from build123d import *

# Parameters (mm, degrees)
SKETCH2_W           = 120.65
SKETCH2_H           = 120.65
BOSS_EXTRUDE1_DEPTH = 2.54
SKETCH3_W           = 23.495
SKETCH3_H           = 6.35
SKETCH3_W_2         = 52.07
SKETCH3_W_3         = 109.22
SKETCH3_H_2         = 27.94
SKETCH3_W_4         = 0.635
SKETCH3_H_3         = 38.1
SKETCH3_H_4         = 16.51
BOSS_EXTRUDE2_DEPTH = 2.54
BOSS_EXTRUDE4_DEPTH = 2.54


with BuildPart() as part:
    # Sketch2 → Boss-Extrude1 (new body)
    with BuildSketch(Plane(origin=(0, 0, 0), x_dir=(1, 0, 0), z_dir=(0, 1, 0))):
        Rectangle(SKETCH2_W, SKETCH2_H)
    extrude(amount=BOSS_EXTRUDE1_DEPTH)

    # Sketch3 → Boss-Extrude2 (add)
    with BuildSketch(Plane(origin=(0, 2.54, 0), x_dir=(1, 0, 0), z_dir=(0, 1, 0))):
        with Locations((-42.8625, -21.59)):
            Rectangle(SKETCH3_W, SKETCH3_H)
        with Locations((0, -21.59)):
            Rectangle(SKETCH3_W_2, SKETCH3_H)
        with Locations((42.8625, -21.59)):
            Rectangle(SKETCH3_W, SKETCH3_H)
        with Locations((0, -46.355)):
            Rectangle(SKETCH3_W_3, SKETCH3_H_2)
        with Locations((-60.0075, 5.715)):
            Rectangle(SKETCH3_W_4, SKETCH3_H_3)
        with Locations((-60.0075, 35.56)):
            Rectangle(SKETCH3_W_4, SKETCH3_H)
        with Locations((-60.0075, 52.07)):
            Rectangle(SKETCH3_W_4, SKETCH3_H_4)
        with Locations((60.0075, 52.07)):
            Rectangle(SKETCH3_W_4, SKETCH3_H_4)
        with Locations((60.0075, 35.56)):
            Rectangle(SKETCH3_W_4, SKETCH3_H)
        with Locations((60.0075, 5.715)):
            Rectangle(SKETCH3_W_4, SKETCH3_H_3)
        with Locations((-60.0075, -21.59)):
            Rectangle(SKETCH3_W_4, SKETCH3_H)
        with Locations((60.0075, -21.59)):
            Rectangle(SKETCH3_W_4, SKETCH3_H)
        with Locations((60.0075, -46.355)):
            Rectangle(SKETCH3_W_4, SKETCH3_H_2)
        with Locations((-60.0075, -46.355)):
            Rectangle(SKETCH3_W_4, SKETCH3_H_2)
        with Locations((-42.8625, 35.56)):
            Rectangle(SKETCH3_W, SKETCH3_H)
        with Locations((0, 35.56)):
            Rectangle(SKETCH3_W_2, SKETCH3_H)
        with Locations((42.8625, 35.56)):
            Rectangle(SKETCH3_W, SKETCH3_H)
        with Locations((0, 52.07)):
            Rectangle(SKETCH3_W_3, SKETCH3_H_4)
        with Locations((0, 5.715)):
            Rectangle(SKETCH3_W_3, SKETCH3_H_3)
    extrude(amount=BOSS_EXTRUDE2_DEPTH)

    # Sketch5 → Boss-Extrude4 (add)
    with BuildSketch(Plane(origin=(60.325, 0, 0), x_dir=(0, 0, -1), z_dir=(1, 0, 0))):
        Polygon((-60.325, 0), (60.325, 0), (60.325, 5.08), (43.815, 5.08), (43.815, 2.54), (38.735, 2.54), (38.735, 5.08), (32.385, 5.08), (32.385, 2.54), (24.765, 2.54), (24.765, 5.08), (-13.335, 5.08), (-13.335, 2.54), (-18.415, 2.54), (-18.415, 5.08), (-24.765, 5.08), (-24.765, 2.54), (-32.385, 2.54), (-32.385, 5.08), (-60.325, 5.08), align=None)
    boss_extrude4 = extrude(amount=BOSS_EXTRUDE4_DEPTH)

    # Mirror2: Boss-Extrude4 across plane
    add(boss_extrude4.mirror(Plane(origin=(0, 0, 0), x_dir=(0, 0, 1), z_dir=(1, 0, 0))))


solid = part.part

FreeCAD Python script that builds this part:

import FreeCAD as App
import Part
import Sketcher
from FreeCAD import Vector
Q = App.Units.Quantity


def add_polygon(sketch, points):
    """Adds a closed chain of lines whose ends are joined by coincident constraints."""
    first, n = sketch.GeometryCount, len(points)
    for a, b in zip(points, points[1:] + points[:1]):
        sketch.addGeometry(Part.LineSegment(App.Vector(*a, 0), App.Vector(*b, 0)), False)
    for i in range(n):
        sketch.addConstraint(Sketcher.Constraint("Coincident", first + i, 2, first + (i + 1) % n, 1))

doc = App.newDocument("Part")
body = doc.addObject("PartDesign::Body", "Body")

sketch1 = doc.addObject("Sketcher::SketchObject", "Sketch")
body.addObject(sketch1)
sketch1.AttachmentSupport = (doc.XZ_Plane, [""])
sketch1.MapMode = "FlatFace"
add_polygon(sketch1, [(-60, -60), (-60, 60), (60, 60), (60, -60)])
sketch1.addConstraint(Sketcher.Constraint("Vertical", 0))
sketch1.addConstraint(Sketcher.Constraint("Horizontal", 1))
sketch1.addConstraint(Sketcher.Constraint("Vertical", 2))
sketch1.addConstraint(Sketcher.Constraint("Horizontal", 3))
sketch1.addConstraint(Sketcher.Constraint("Symmetric", 0, 2, 2, 2, -1, 1))
sketch1.addConstraint(Sketcher.Constraint("Equal", 3, 0))
sketch1.addConstraint(Sketcher.Constraint("DistanceX", 1, 1, 1, 2, Q("4.75 in")))
pad1 = doc.addObject("PartDesign::Pad", "Pad")
body.addObject(pad1)
pad1.Profile = sketch1
pad1.Length = Q("0.1 in")
pad1.Reversed = True

sketch2 = doc.addObject("Sketcher::SketchObject", "Sketch001")
body.addObject(sketch2)
sketch2.AttachmentSupport = (doc.XZ_Plane, [""])
sketch2.MapMode = "FlatFace"
sketch2.AttachmentOffset = App.Placement(Vector(0, 0, -0.1 * 25.4), App.Rotation())
add_polygon(sketch2, [(-54.6, 18.4), (-54.6, 24.8), (-31.1, 24.8), (-31.1, 18.4)])
add_polygon(sketch2, [(-26, 18.4), (-26, 24.8), (26, 24.8), (26, 18.4)])
add_polygon(sketch2, [(31.1, 18.4), (31.1, 24.8), (54.6, 24.8), (54.6, 18.4)])
add_polygon(sketch2, [(-54.6, 32.4), (-54.6, 60.3), (54.6, 60.3), (54.6, 32.4)])
add_polygon(sketch2, [(-60.3, -24.8), (-60.3, 13.3), (-59.7, 13.3), (-59.7, -24.8)])
add_polygon(sketch2, [(-60.3, -38.7), (-60.3, -32.4), (-59.7, -32.4), (-59.7, -38.7)])
add_polygon(sketch2, [(-60.3, -60.3), (-60.3, -43.8), (-59.7, -43.8), (-59.7, -60.3)])
add_polygon(sketch2, [(59.7, -60.3), (59.7, -43.8), (60.3, -43.8), (60.3, -60.3)])
add_polygon(sketch2, [(59.7, -38.7), (59.7, -32.4), (60.3, -32.4), (60.3, -38.7)])
add_polygon(sketch2, [(59.7, -24.8), (59.7, 13.3), (60.3, 13.3), (60.3, -24.8)])
add_polygon(sketch2, [(-60.3, 18.4), (-60.3, 24.8), (-59.7, 24.8), (-59.7, 18.4)])
add_polygon(sketch2, [(59.7, 18.4), (59.7, 24.8), (60.3, 24.8), (60.3, 18.4)])
add_polygon(sketch2, [(59.7, 32.4), (59.7, 60.3), (60.3, 60.3), (60.3, 32.4)])
add_polygon(sketch2, [(-60.3, 32.4), (-60.3, 60.3), (-59.7, 60.3), (-59.7, 32.4)])
add_polygon(sketch2, [(-54.6, -38.7), (-54.6, -32.4), (-31.1, -32.4), (-31.1, -38.7)])
add_polygon(sketch2, [(-26, -38.7), (-26, -32.4), (26, -32.4), (26, -38.7)])
add_polygon(sketch2, [(31.1, -38.7), (31.1, -32.4), (54.6, -32.4), (54.6, -38.7)])
add_polygon(sketch2, [(-54.6, -60.3), (-54.6, -43.8), (54.6, -43.8), (54.6, -60.3)])
add_polygon(sketch2, [(-54.6, -24.8), (-54.6, 13.3), (54.6, 13.3), (54.6, -24.8)])
sketch2.addConstraint(Sketcher.Constraint("Vertical", 0))
sketch2.addConstraint(Sketcher.Constraint("Horizontal", 1))
sketch2.addConstraint(Sketcher.Constraint("Vertical", 2))
sketch2.addConstraint(Sketcher.Constraint("Horizontal", 3))
sketch2.addConstraint(Sketcher.Constraint("Vertical", 4))
sketch2.addConstraint(Sketcher.Constraint("Horizontal", 5))
sketch2.addConstraint(Sketcher.Constraint("Vertical", 6))
sketch2.addConstraint(Sketcher.Constraint("Horizontal", 7))
sketch2.addConstraint(Sketcher.Constraint("Vertical", 8))
sketch2.addConstraint(Sketcher.Constraint("Horizontal", 9))
sketch2.addConstraint(Sketcher.Constraint("Vertical", 10))
sketch2.addConstraint(Sketcher.Constraint("Horizontal", 11))
sketch2.addConstraint(Sketcher.Constraint("Vertical", 12))
sketch2.addConstraint(Sketcher.Constraint("Horizontal", 13))
sketch2.addConstraint(Sketcher.Constraint("Vertical", 14))
sketch2.addConstraint(Sketcher.Constraint("Horizontal", 15))
sketch2.addConstraint(Sketcher.Constraint("Vertical", 16))
sketch2.addConstraint(Sketcher.Constraint("Horizontal", 17))
sketch2.addConstraint(Sketcher.Constraint("Vertical", 18))
sketch2.addConstraint(Sketcher.Constraint("Horizontal", 19))
sketch2.addConstraint(Sketcher.Constraint("Vertical", 20))
sketch2.addConstraint(Sketcher.Constraint("Horizontal", 21))
sketch2.addConstraint(Sketcher.Constraint("Vertical", 22))
sketch2.addConstraint(Sketcher.Constraint("Horizontal", 23))
sketch2.addConstraint(Sketcher.Constraint("Vertical", 24))
sketch2.addConstraint(Sketcher.Constraint("Horizontal", 25))
sketch2.addConstraint(Sketcher.Constraint("Vertical", 26))
sketch2.addConstraint(Sketcher.Constraint("Horizontal", 27))
sketch2.addConstraint(Sketcher.Constraint("Vertical", 28))
sketch2.addConstraint(Sketcher.Constraint("Horizontal", 29))
sketch2.addConstraint(Sketcher.Constraint("Vertical", 30))
sketch2.addConstraint(Sketcher.Constraint("Horizontal", 31))
sketch2.addConstraint(Sketcher.Constraint("Vertical", 32))
sketch2.addConstraint(Sketcher.Constraint("Horizontal", 33))
sketch2.addConstraint(Sketcher.Constraint("Vertical", 34))
sketch2.addConstraint(Sketcher.Constraint("Horizontal", 35))
sketch2.addConstraint(Sketcher.Constraint("Vertical", 36))
sketch2.addConstraint(Sketcher.Constraint("Horizontal", 37))
sketch2.addConstraint(Sketcher.Constraint("Vertical", 38))
sketch2.addConstraint(Sketcher.Constraint("Horizontal", 39))
sketch2.addConstraint(Sketcher.Constraint("Vertical", 40))
sketch2.addConstraint(Sketcher.Constraint("Horizontal", 41))
sketch2.addConstraint(Sketcher.Constraint("Vertical", 42))
sketch2.addConstraint(Sketcher.Constraint("Horizontal", 43))
sketch2.addConstraint(Sketcher.Constraint("Vertical", 44))
sketch2.addConstraint(Sketcher.Constraint("Horizontal", 45))
sketch2.addConstraint(Sketcher.Constraint("Vertical", 46))
sketch2.addConstraint(Sketcher.Constraint("Horizontal", 47))
sketch2.addConstraint(Sketcher.Constraint("Vertical", 48))
sketch2.addConstraint(Sketcher.Constraint("Horizontal", 49))
sketch2.addConstraint(Sketcher.Constraint("Vertical", 50))
sketch2.addConstraint(Sketcher.Constraint("Horizontal", 51))
sketch2.addConstraint(Sketcher.Constraint("Vertical", 52))
sketch2.addConstraint(Sketcher.Constraint("Horizontal", 53))
sketch2.addConstraint(Sketcher.Constraint("Vertical", 54))
sketch2.addConstraint(Sketcher.Constraint("Horizontal", 55))
sketch2.addConstraint(Sketcher.Constraint("Vertical", 56))
sketch2.addConstraint(Sketcher.Constraint("Horizontal", 57))
sketch2.addConstraint(Sketcher.Constraint("Vertical", 58))
sketch2.addConstraint(Sketcher.Constraint("Horizontal", 59))
sketch2.addConstraint(Sketcher.Constraint("Vertical", 60))
sketch2.addConstraint(Sketcher.Constraint("Horizontal", 61))
sketch2.addConstraint(Sketcher.Constraint("Vertical", 62))
sketch2.addConstraint(Sketcher.Constraint("Horizontal", 63))
sketch2.addConstraint(Sketcher.Constraint("Vertical", 64))
sketch2.addConstraint(Sketcher.Constraint("Horizontal", 65))
sketch2.addConstraint(Sketcher.Constraint("Vertical", 66))
sketch2.addConstraint(Sketcher.Constraint("Horizontal", 67))
sketch2.addConstraint(Sketcher.Constraint("Vertical", 68))
sketch2.addConstraint(Sketcher.Constraint("Horizontal", 69))
sketch2.addConstraint(Sketcher.Constraint("Vertical", 70))
sketch2.addConstraint(Sketcher.Constraint("Horizontal", 71))
sketch2.addConstraint(Sketcher.Constraint("Vertical", 72))
sketch2.addConstraint(Sketcher.Constraint("Horizontal", 73))
sketch2.addConstraint(Sketcher.Constraint("Vertical", 74))
sketch2.addConstraint(Sketcher.Constraint("Horizontal", 75))
sketch2.addConstraint(Sketcher.Constraint("Symmetric", 38, 2, 40, 2, -1, 1))
sketch2.addConstraint(Sketcher.Constraint("Symmetric", 18, 2, 44, 2, -1, 1))
sketch2.addConstraint(Sketcher.Constraint("Symmetric", 26, 2, 48, 2, -1, 1))
sketch2.addConstraint(Sketcher.Constraint("Symmetric", 20, 2, 50, 2, -1, 1))
sketch2.addConstraint(Sketcher.Constraint("Symmetric", 30, 2, 52, 2, -1, 1))
sketch2.addConstraint(Sketcher.Constraint("Symmetric", 32, 2, 54, 2, -1, 1))
sketch2.addConstraint(Sketcher.Constraint("Symmetric", 14, 2, 56, 2, -1, 1))
sketch2.addConstraint(Sketcher.Constraint("Symmetric", 15, 2, 65, 2, -1, 1))
sketch2.addConstraint(Sketcher.Constraint("Symmetric", 12, 2, 70, 2, -1, 1))
sketch2.addConstraint(Sketcher.Constraint("Symmetric", 0, 2, 74, 2, -1, 1))
sketch2.addConstraint(Sketcher.Constraint("Symmetric", 9, 2, 75, 2, -1, 1))
sketch2.addConstraint(Sketcher.Constraint("Symmetric", 3, 2, 10, 2, -2))
sketch2.addConstraint(Sketcher.Constraint("Symmetric", 25, 2, 28, 2, -2))
sketch2.addConstraint(Sketcher.Constraint("Symmetric", 27, 2, 30, 2, -2))
sketch2.addConstraint(Sketcher.Constraint("Symmetric", 21, 2, 32, 2, -2))
sketch2.addConstraint(Sketcher.Constraint("Symmetric", 23, 2, 34, 2, -2))
sketch2.addConstraint(Sketcher.Constraint("Symmetric", 17, 2, 36, 2, -2))
sketch2.addConstraint(Sketcher.Constraint("Symmetric", 19, 2, 38, 2, -2))
sketch2.addConstraint(Sketcher.Constraint("Symmetric", 43, 2, 46, 2, -2))
sketch2.addConstraint(Sketcher.Constraint("Symmetric", 59, 2, 66, 2, -2))
sketch2.addConstraint(Sketcher.Constraint("Horizontal", 1, 2, 4, 2))
sketch2.addConstraint(Sketcher.Constraint("Horizontal", 3, 2, 6, 2))
sketch2.addConstraint(Sketcher.Constraint("Horizontal", 9, 2, 40, 2))
sketch2.addConstraint(Sketcher.Constraint("Horizontal", 11, 2, 42, 2))
sketch2.addConstraint(Sketcher.Constraint("Horizontal", 13, 2, 48, 2))
sketch2.addConstraint(Sketcher.Constraint("Horizontal", 15, 2, 50, 2))
sketch2.addConstraint(Sketcher.Constraint("Horizontal", 35, 2, 58, 2))
sketch2.addConstraint(Sketcher.Constraint("Horizontal", 57, 2, 60, 2))
sketch2.addConstraint(Sketcher.Constraint("Horizontal", 59, 2, 62, 2))
sketch2.addConstraint(Sketcher.Constraint("Horizontal", 29, 2, 68, 2))
sketch2.addConstraint(Sketcher.Constraint("Horizontal", 37, 2, 72, 2))
sketch2.addConstraint(Sketcher.Constraint("Vertical", 3, 2, 12, 2))
sketch2.addConstraint(Sketcher.Constraint("Vertical", 19, 2, 20, 2))
sketch2.addConstraint(Sketcher.Constraint("Vertical", 18, 2, 21, 2))
sketch2.addConstraint(Sketcher.Constraint("Vertical", 23, 2, 24, 2))
sketch2.addConstraint(Sketcher.Constraint("Vertical", 22, 2, 25, 2))
sketch2.addConstraint(Sketcher.Constraint("Vertical", 26, 2, 41, 2))
sketch2.addConstraint(Sketcher.Constraint("Vertical", 2, 2, 57, 2))
sketch2.addConstraint(Sketcher.Constraint("Vertical", 7, 2, 60, 2))
sketch2.addConstraint(Sketcher.Constraint("Vertical", 6, 2, 61, 2))
sketch2.addConstraint(Sketcher.Constraint("Vertical", 11, 2, 64, 2))
sketch2.addConstraint(Sketcher.Constraint("Vertical", 59, 2, 68, 2))
sketch2.addConstraint(Sketcher.Constraint("Equal", 3, 9))
sketch2.addConstraint(Sketcher.Constraint("Equal", 10, 20))
sketch2.addConstraint(Sketcher.Constraint("DistanceX", 13, 1, 13, 2, Q("4.3 in")))
sketch2.addConstraint(Sketcher.Constraint("DistanceY", 12, 1, 12, 2, Q("1.1 in")))
sketch2.addConstraint(Sketcher.Constraint("DistanceY", 16, 1, 16, 2, Q("1.5 in")))
sketch2.addConstraint(Sketcher.Constraint("DistanceX", 5, 1, 5, 2, Q("2.05 in")))
sketch2.addConstraint(Sketcher.Constraint("DistanceY", 0, 1, 0, 2, Q("0.25 in")))
sketch2.addConstraint(Sketcher.Constraint("DistanceY", 24, 1, 24, 2, Q("0.65 in")))
sketch2.addConstraint(Sketcher.Constraint("DistanceX", 1, 1, 1, 2, Q("0.925 in")))
sketch2.addConstraint(Sketcher.Constraint("DistanceX", 17, 1, 17, 2, Q("0.025 in")))
sketch2.addConstraint(Sketcher.Constraint("DistanceX", 17, 2, -1, 1, Q("2.35 in")))
sketch2.addConstraint(Sketcher.Constraint("DistanceY", -1, 1, 0, 2, Q("0.975 in")))
sketch2.addConstraint(Sketcher.Constraint("DistanceX", 4, 2, -1, 1, Q("1.025 in")))
sketch2.addConstraint(Sketcher.Constraint("DistanceY", -1, 1, 12, 2, Q("2.375 in")))
pad2 = doc.addObject("PartDesign::Pad", "Pad001")
body.addObject(pad2)
pad2.Profile = sketch2
pad2.Length = Q("0.1 in")
pad2.Reversed = True

sketch3 = doc.addObject("Sketcher::SketchObject", "Sketch002")
body.addObject(sketch3)
sketch3.AttachmentSupport = (doc.YZ_Plane, [""])
sketch3.MapMode = "FlatFace"
sketch3.AttachmentOffset = App.Placement(Vector(0, 0, 2.375 * 25.4), App.Rotation())
add_polygon(sketch3, [(0, 60.3), (0, -60.3), (5.1, -60.3), (5.1, -43.8), (2.5, -43.8), (2.5, -38.7), (5.1, -38.7), (5.1, -32.4), (2.5, -32.4), (2.5, -24.8), (5.1, -24.8), (5.1, 13.3), (2.5, 13.3), (2.5, 18.4), (5.1, 18.4), (5.1, 24.8), (2.5, 24.8), (2.5, 32.4), (5.1, 32.4), (5.1, 60.3)])
sketch3.addConstraint(Sketcher.Constraint("Vertical", 0))
sketch3.addConstraint(Sketcher.Constraint("Horizontal", 1))
sketch3.addConstraint(Sketcher.Constraint("Vertical", 2))
sketch3.addConstraint(Sketcher.Constraint("Horizontal", 3))
sketch3.addConstraint(Sketcher.Constraint("Vertical", 4))
sketch3.addConstraint(Sketcher.Constraint("Horizontal", 5))
sketch3.addConstraint(Sketcher.Constraint("Vertical", 6))
sketch3.addConstraint(Sketcher.Constraint("Horizontal", 7))
sketch3.addConstraint(Sketcher.Constraint("Vertical", 8))
sketch3.addConstraint(Sketcher.Constraint("Horizontal", 9))
sketch3.addConstraint(Sketcher.Constraint("Vertical", 10))
sketch3.addConstraint(Sketcher.Constraint("Horizontal", 11))
sketch3.addConstraint(Sketcher.Constraint("Vertical", 12))
sketch3.addConstraint(Sketcher.Constraint("Horizontal", 13))
sketch3.addConstraint(Sketcher.Constraint("Vertical", 14))
sketch3.addConstraint(Sketcher.Constraint("Horizontal", 15))
sketch3.addConstraint(Sketcher.Constraint("Vertical", 16))
sketch3.addConstraint(Sketcher.Constraint("Horizontal", 17))
sketch3.addConstraint(Sketcher.Constraint("Vertical", 18))
sketch3.addConstraint(Sketcher.Constraint("Horizontal", 19))
sketch3.addConstraint(Sketcher.Constraint("Symmetric", 0, 2, 19, 2, -1, 1))
sketch3.addConstraint(Sketcher.Constraint("Symmetric", 9, 2, 14, 2, -1))
sketch3.addConstraint(Sketcher.Constraint("Symmetric", 7, 2, 16, 2, -1))
sketch3.addConstraint(Sketcher.Constraint("Vertical", 2, 2, 5, 2))
sketch3.addConstraint(Sketcher.Constraint("Vertical", 4, 2, 7, 2))
sketch3.addConstraint(Sketcher.Constraint("Vertical", 6, 2, 9, 2))
sketch3.addConstraint(Sketcher.Constraint("Vertical", 8, 2, 11, 2))
sketch3.addConstraint(Sketcher.Constraint("Vertical", 14, 2, 17, 2))
sketch3.addConstraint(Sketcher.Constraint("Equal", 19, 4))
sketch3.addConstraint(Sketcher.Constraint("Equal", 4, 12))
sketch3.addConstraint(Sketcher.Constraint("Equal", 6, 14))
sketch3.addConstraint(Sketcher.Constraint("DistanceX", 1, 1, 1, 2, Q("0.2 in")))
sketch3.addConstraint(Sketcher.Constraint("DistanceX", 3, 2, 3, 1, Q("0.1 in")))
sketch3.addConstraint(Sketcher.Constraint("DistanceY", 8, 1, 8, 2, Q("0.3 in")))
sketch3.addConstraint(Sketcher.Constraint("DistanceY", 10, 1, 10, 2, Q("1.5 in")))
sketch3.addConstraint(Sketcher.Constraint("DistanceY", 18, 1, 18, 2, Q("1.1 in")))
sketch3.addConstraint(Sketcher.Constraint("DistanceY", 0, 2, 0, 1, Q("4.75 in")))
pad3 = doc.addObject("PartDesign::Pad", "Pad002")
body.addObject(pad3)
pad3.Profile = sketch3
pad3.Length = Q("0.1 in")
doc.recompute()

mirrored = doc.addObject("PartDesign::Mirrored", "Mirrored")
body.addObject(mirrored)
mirrored.Originals = [pad3]
mirrored.MirrorPlane = (doc.YZ_Plane, [""])
body.Tip = mirrored

doc.recompute()
